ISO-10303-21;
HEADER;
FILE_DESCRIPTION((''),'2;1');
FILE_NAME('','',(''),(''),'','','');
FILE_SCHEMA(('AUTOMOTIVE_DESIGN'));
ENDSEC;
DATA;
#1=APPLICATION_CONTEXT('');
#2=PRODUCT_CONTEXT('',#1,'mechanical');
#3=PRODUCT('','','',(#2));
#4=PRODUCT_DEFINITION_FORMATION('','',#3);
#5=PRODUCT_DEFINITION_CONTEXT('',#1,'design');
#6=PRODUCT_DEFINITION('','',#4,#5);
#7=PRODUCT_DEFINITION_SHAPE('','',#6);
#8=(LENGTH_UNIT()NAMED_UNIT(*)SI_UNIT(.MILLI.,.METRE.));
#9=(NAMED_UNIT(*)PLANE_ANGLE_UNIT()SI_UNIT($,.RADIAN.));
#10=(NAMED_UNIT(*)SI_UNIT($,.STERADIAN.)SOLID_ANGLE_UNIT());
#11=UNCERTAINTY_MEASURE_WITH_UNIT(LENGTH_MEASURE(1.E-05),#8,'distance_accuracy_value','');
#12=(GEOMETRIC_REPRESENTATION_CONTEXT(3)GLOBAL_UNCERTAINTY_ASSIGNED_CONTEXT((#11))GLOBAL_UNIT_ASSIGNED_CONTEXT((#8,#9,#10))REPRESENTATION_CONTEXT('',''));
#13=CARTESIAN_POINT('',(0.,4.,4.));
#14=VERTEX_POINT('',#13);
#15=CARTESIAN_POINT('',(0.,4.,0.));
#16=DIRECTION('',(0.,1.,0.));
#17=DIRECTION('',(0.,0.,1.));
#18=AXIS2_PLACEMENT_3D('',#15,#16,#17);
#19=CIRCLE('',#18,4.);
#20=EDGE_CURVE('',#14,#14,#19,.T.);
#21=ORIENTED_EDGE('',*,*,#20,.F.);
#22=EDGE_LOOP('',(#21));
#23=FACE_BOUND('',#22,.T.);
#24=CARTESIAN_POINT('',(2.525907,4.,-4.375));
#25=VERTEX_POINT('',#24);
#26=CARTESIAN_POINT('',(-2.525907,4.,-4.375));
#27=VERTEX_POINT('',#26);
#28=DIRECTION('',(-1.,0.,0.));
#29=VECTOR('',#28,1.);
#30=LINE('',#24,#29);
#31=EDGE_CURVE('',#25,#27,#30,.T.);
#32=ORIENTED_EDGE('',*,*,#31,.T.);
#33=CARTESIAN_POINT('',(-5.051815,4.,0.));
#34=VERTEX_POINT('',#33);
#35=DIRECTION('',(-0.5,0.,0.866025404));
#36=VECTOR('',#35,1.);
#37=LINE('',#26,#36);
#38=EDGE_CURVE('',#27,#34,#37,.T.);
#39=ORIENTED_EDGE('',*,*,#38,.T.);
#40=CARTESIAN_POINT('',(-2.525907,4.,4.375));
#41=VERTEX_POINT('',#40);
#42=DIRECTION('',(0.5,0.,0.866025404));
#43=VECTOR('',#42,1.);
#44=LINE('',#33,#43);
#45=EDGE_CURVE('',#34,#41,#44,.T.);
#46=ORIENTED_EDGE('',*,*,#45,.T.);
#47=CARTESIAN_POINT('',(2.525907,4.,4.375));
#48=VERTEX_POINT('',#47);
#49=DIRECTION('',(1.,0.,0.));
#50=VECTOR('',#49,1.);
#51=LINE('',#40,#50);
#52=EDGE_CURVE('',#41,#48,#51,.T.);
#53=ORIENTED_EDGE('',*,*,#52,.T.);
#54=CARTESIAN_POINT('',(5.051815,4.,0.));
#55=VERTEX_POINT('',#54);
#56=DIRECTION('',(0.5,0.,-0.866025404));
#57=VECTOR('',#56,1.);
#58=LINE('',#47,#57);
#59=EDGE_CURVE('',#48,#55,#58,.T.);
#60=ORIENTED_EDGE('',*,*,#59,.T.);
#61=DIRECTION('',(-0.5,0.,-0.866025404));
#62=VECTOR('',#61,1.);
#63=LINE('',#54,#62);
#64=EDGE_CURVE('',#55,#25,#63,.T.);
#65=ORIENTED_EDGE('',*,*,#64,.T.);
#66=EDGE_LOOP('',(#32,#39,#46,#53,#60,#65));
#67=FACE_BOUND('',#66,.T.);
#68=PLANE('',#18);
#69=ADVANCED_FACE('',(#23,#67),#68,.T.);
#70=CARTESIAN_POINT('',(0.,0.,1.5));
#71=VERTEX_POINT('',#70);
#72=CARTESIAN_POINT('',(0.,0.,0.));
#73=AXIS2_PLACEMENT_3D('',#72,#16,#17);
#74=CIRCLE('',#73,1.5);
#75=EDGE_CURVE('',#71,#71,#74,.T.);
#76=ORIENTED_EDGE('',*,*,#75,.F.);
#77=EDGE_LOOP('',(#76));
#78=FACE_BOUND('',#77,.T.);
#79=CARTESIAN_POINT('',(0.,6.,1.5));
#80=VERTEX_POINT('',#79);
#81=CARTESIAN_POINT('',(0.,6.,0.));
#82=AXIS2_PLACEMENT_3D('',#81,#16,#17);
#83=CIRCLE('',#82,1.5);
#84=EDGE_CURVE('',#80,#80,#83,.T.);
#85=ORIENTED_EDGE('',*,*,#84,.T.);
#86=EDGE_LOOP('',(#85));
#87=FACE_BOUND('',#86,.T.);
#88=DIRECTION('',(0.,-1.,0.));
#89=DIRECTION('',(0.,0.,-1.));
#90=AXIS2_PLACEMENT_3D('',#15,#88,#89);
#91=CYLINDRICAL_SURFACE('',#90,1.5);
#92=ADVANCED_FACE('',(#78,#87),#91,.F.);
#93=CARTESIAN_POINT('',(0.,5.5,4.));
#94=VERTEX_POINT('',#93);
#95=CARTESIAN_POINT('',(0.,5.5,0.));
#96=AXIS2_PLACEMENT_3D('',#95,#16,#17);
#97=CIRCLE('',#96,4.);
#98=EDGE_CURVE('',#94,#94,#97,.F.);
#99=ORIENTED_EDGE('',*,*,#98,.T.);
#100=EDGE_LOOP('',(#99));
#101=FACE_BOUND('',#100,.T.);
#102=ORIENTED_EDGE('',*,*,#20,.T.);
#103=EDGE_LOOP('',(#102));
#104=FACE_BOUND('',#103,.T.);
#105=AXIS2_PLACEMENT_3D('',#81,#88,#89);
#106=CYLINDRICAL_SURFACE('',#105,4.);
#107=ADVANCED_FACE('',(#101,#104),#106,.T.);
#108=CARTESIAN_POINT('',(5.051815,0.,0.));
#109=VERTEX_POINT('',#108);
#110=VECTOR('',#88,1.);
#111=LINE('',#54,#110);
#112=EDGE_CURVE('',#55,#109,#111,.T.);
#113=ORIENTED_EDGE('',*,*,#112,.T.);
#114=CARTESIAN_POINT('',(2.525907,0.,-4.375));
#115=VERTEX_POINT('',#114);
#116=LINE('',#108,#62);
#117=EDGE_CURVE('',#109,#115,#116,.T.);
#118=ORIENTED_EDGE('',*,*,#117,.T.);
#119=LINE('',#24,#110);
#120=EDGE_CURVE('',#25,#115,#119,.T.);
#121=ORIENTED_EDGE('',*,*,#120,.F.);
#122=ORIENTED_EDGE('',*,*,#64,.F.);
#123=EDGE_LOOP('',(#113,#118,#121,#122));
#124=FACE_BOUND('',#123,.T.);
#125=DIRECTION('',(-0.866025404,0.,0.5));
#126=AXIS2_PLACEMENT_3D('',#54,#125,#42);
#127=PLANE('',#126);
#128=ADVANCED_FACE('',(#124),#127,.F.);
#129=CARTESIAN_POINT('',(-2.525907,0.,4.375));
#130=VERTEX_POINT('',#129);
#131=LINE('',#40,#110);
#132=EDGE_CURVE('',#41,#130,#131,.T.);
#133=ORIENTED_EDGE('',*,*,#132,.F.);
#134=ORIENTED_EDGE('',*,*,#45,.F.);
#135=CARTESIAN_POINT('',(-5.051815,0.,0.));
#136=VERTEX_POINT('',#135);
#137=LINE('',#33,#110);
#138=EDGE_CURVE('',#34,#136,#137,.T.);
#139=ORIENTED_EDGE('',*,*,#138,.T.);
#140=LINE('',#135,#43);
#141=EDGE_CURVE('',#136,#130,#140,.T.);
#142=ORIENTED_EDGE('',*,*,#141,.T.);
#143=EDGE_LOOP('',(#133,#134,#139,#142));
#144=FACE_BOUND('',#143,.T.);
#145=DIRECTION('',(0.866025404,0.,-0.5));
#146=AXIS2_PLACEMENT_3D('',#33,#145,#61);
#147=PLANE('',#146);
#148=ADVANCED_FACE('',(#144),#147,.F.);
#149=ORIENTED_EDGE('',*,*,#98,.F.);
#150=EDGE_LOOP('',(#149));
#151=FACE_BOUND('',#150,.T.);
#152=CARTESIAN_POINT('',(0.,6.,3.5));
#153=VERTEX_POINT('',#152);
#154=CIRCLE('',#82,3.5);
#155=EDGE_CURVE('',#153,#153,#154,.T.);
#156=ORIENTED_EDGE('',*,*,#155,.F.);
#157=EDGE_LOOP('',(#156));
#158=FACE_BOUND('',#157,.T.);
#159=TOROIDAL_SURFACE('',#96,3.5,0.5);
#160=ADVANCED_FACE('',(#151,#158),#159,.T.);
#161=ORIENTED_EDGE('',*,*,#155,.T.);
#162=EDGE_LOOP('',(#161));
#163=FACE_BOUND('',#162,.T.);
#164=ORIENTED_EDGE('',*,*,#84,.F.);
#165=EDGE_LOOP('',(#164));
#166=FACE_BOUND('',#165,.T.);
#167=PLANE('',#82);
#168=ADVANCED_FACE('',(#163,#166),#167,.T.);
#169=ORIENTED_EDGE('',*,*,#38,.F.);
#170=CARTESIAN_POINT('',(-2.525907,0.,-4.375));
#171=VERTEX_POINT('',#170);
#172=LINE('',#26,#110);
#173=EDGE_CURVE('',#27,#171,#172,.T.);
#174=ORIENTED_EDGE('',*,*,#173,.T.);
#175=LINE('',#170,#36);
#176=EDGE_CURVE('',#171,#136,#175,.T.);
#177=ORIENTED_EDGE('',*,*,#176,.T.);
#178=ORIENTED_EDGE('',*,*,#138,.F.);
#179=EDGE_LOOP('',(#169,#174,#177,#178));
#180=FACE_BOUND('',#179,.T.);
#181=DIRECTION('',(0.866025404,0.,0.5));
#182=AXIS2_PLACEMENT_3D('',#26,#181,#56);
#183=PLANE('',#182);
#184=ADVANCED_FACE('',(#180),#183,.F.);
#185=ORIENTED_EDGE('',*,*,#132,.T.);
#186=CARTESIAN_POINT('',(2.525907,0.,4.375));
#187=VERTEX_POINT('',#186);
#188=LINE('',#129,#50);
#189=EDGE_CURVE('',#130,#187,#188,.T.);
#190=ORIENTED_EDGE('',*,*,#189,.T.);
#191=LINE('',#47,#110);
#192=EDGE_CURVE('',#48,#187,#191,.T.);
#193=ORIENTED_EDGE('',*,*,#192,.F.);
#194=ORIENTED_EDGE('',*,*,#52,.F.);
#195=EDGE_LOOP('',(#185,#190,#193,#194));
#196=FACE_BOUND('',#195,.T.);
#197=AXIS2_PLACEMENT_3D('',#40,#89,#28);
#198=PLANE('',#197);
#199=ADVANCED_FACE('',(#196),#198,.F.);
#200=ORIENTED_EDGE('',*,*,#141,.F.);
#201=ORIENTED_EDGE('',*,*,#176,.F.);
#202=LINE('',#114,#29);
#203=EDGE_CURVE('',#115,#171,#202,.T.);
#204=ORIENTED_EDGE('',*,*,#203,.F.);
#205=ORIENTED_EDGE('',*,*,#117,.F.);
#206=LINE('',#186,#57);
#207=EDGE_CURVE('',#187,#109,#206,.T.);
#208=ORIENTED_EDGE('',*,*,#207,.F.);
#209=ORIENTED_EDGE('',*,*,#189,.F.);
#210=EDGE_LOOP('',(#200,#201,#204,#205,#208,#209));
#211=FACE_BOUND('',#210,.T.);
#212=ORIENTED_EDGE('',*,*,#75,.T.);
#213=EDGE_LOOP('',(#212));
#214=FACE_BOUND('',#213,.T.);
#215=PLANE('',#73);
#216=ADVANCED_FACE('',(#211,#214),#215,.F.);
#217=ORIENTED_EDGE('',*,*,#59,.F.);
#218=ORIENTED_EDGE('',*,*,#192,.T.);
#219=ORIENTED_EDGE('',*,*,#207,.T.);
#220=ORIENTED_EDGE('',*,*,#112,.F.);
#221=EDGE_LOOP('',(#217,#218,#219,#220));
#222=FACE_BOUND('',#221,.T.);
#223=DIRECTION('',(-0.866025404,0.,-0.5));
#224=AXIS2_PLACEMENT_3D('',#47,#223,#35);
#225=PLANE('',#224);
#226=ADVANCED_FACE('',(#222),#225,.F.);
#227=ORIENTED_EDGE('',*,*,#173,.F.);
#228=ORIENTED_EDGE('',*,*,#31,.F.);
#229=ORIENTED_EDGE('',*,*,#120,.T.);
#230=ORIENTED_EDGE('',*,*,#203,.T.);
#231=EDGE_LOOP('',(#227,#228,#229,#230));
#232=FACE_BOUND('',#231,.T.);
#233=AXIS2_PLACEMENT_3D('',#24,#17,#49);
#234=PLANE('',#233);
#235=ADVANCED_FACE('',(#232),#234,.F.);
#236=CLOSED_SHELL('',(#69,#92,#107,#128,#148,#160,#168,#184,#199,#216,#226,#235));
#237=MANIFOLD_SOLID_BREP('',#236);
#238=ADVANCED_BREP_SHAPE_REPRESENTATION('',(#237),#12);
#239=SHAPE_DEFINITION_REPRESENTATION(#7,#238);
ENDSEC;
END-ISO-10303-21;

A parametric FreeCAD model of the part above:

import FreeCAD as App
import Part
import Sketcher
Q = App.Units.Quantity


def edges_at(feature, points):
    """Names of the edges that pass closest to the given points."""
    edges = feature.Shape.Edges
    near = lambda p: min(range(len(edges)), key=lambda i: edges[i].distToShape(Part.Vertex(*p))[0])
    return sorted({f"Edge{near(p) + 1}" for p in points})

doc = App.newDocument("Part")
body = doc.addObject("PartDesign::Body", "Body")

# Sketch on XZ plane
sketch1 = body.newObject("Sketcher::SketchObject", "Sketch")
sketch1.AttachmentSupport = (doc.getObject("XZ_Plane"), [""])
sketch1.MapMode = "FlatFace"
sketch1.addGeometry(Part.LineSegment(App.Vector(2.525907, -4.375, 0), App.Vector(-2.525907, -4.375, 0)), False)
sketch1.addGeometry(Part.LineSegment(App.Vector(-2.525907, -4.375, 0), App.Vector(-5.051815, 0, 0)), False)
sketch1.addGeometry(Part.LineSegment(App.Vector(-5.051815, 0, 0), App.Vector(-2.525907, 4.375, 0)), False)
sketch1.addGeometry(Part.LineSegment(App.Vector(-2.525907, 4.375, 0), App.Vector(2.525907, 4.375, 0)), False)
sketch1.addGeometry(Part.LineSegment(App.Vector(2.525907, 4.375, 0), App.Vector(5.051815, 0, 0)), False)
sketch1.addGeometry(Part.LineSegment(App.Vector(5.051815, 0, 0), App.Vector(2.525907, -4.375, 0)), False)
sketch1.addGeometry(Part.Circle(App.Vector(0, 0, 0), App.Vector(0, 0, 1), 1.5), False)
sketch1.addConstraint(Sketcher.Constraint("Coincident", 0, 2, 1, 1))
sketch1.addConstraint(Sketcher.Constraint("Coincident", 1, 2, 2, 1))
sketch1.addConstraint(Sketcher.Constraint("Coincident", 2, 2, 3, 1))
sketch1.addConstraint(Sketcher.Constraint("Coincident", 3, 2, 4, 1))
sketch1.addConstraint(Sketcher.Constraint("Coincident", 4, 2, 5, 1))
sketch1.addConstraint(Sketcher.Constraint("Coincident", 5, 2, 0, 1))
sketch1.addConstraint(Sketcher.Constraint("Horizontal", 0))
sketch1.addConstraint(Sketcher.Constraint("Horizontal", 3))
sketch1.addConstraint(Sketcher.Constraint("Coincident", 6, 3, -1, 1))
sketch1.addConstraint(Sketcher.Constraint("Symmetric", 0, 2, 3, 2, -1, 1))
sketch1.addConstraint(Sketcher.Constraint("Symmetric", 1, 2, 4, 2, -1, 1))
sketch1.addConstraint(Sketcher.Constraint("PointOnObject", 1, 2, -1))
sketch1.addConstraint(Sketcher.Constraint("Parallel", 2, 5))
sketch1.addConstraint(Sketcher.Constraint("Vertical", 0, 2, 2, 2))
sketch1.addConstraint(Sketcher.Constraint("Diameter", 6, 3.0))
sketch1.addConstraint(Sketcher.Constraint("Angle", 1, Q("120 deg")))
sketch1.addConstraint(Sketcher.Constraint("DistanceY", 0, 2, 2, 2, 8.75))
sketch1.addConstraint(Sketcher.Constraint("DistanceX", 0, 2, 0, 1, 5.051815))
pad1 = body.newObject("PartDesign::Pad", "Pad")
pad1.Profile = sketch1
pad1.Length = 4
pad1.Reversed = True

# Sketch on XZ plane
sketch2 = body.newObject("Sketcher::SketchObject", "Sketch001")
sketch2.AttachmentSupport = (doc.getObject("XZ_Plane"), [""])
sketch2.MapMode = "FlatFace"
sketch2.AttachmentOffset = App.Placement(App.Vector(0, 0, -4), App.Rotation())
sketch2.addGeometry(Part.Circle(App.Vector(0, 0, 0), App.Vector(0, 0, 1), 4), False)
sketch2.addGeometry(Part.Circle(App.Vector(0, 0, 0), App.Vector(0, 0, 1), 1.5), False)
sketch2.addConstraint(Sketcher.Constraint("Coincident", 0, 3, -1, 1))
sketch2.addConstraint(Sketcher.Constraint("Coincident", 1, 3, -1, 1))
sketch2.addConstraint(Sketcher.Constraint("Diameter", 0, 8.0))
sketch2.addConstraint(Sketcher.Constraint("Diameter", 1, 3.0))
pad2 = body.newObject("PartDesign::Pad", "Pad001")
pad2.Profile = sketch2
pad2.Length = 2
pad2.Reversed = True
doc.recompute()

fillet = body.newObject("PartDesign::Fillet", "Fillet")
fillet.Base = (pad2, edges_at(pad2, [(0, 6, -4)]))
fillet.Radius = 0.5

doc.recompute()
